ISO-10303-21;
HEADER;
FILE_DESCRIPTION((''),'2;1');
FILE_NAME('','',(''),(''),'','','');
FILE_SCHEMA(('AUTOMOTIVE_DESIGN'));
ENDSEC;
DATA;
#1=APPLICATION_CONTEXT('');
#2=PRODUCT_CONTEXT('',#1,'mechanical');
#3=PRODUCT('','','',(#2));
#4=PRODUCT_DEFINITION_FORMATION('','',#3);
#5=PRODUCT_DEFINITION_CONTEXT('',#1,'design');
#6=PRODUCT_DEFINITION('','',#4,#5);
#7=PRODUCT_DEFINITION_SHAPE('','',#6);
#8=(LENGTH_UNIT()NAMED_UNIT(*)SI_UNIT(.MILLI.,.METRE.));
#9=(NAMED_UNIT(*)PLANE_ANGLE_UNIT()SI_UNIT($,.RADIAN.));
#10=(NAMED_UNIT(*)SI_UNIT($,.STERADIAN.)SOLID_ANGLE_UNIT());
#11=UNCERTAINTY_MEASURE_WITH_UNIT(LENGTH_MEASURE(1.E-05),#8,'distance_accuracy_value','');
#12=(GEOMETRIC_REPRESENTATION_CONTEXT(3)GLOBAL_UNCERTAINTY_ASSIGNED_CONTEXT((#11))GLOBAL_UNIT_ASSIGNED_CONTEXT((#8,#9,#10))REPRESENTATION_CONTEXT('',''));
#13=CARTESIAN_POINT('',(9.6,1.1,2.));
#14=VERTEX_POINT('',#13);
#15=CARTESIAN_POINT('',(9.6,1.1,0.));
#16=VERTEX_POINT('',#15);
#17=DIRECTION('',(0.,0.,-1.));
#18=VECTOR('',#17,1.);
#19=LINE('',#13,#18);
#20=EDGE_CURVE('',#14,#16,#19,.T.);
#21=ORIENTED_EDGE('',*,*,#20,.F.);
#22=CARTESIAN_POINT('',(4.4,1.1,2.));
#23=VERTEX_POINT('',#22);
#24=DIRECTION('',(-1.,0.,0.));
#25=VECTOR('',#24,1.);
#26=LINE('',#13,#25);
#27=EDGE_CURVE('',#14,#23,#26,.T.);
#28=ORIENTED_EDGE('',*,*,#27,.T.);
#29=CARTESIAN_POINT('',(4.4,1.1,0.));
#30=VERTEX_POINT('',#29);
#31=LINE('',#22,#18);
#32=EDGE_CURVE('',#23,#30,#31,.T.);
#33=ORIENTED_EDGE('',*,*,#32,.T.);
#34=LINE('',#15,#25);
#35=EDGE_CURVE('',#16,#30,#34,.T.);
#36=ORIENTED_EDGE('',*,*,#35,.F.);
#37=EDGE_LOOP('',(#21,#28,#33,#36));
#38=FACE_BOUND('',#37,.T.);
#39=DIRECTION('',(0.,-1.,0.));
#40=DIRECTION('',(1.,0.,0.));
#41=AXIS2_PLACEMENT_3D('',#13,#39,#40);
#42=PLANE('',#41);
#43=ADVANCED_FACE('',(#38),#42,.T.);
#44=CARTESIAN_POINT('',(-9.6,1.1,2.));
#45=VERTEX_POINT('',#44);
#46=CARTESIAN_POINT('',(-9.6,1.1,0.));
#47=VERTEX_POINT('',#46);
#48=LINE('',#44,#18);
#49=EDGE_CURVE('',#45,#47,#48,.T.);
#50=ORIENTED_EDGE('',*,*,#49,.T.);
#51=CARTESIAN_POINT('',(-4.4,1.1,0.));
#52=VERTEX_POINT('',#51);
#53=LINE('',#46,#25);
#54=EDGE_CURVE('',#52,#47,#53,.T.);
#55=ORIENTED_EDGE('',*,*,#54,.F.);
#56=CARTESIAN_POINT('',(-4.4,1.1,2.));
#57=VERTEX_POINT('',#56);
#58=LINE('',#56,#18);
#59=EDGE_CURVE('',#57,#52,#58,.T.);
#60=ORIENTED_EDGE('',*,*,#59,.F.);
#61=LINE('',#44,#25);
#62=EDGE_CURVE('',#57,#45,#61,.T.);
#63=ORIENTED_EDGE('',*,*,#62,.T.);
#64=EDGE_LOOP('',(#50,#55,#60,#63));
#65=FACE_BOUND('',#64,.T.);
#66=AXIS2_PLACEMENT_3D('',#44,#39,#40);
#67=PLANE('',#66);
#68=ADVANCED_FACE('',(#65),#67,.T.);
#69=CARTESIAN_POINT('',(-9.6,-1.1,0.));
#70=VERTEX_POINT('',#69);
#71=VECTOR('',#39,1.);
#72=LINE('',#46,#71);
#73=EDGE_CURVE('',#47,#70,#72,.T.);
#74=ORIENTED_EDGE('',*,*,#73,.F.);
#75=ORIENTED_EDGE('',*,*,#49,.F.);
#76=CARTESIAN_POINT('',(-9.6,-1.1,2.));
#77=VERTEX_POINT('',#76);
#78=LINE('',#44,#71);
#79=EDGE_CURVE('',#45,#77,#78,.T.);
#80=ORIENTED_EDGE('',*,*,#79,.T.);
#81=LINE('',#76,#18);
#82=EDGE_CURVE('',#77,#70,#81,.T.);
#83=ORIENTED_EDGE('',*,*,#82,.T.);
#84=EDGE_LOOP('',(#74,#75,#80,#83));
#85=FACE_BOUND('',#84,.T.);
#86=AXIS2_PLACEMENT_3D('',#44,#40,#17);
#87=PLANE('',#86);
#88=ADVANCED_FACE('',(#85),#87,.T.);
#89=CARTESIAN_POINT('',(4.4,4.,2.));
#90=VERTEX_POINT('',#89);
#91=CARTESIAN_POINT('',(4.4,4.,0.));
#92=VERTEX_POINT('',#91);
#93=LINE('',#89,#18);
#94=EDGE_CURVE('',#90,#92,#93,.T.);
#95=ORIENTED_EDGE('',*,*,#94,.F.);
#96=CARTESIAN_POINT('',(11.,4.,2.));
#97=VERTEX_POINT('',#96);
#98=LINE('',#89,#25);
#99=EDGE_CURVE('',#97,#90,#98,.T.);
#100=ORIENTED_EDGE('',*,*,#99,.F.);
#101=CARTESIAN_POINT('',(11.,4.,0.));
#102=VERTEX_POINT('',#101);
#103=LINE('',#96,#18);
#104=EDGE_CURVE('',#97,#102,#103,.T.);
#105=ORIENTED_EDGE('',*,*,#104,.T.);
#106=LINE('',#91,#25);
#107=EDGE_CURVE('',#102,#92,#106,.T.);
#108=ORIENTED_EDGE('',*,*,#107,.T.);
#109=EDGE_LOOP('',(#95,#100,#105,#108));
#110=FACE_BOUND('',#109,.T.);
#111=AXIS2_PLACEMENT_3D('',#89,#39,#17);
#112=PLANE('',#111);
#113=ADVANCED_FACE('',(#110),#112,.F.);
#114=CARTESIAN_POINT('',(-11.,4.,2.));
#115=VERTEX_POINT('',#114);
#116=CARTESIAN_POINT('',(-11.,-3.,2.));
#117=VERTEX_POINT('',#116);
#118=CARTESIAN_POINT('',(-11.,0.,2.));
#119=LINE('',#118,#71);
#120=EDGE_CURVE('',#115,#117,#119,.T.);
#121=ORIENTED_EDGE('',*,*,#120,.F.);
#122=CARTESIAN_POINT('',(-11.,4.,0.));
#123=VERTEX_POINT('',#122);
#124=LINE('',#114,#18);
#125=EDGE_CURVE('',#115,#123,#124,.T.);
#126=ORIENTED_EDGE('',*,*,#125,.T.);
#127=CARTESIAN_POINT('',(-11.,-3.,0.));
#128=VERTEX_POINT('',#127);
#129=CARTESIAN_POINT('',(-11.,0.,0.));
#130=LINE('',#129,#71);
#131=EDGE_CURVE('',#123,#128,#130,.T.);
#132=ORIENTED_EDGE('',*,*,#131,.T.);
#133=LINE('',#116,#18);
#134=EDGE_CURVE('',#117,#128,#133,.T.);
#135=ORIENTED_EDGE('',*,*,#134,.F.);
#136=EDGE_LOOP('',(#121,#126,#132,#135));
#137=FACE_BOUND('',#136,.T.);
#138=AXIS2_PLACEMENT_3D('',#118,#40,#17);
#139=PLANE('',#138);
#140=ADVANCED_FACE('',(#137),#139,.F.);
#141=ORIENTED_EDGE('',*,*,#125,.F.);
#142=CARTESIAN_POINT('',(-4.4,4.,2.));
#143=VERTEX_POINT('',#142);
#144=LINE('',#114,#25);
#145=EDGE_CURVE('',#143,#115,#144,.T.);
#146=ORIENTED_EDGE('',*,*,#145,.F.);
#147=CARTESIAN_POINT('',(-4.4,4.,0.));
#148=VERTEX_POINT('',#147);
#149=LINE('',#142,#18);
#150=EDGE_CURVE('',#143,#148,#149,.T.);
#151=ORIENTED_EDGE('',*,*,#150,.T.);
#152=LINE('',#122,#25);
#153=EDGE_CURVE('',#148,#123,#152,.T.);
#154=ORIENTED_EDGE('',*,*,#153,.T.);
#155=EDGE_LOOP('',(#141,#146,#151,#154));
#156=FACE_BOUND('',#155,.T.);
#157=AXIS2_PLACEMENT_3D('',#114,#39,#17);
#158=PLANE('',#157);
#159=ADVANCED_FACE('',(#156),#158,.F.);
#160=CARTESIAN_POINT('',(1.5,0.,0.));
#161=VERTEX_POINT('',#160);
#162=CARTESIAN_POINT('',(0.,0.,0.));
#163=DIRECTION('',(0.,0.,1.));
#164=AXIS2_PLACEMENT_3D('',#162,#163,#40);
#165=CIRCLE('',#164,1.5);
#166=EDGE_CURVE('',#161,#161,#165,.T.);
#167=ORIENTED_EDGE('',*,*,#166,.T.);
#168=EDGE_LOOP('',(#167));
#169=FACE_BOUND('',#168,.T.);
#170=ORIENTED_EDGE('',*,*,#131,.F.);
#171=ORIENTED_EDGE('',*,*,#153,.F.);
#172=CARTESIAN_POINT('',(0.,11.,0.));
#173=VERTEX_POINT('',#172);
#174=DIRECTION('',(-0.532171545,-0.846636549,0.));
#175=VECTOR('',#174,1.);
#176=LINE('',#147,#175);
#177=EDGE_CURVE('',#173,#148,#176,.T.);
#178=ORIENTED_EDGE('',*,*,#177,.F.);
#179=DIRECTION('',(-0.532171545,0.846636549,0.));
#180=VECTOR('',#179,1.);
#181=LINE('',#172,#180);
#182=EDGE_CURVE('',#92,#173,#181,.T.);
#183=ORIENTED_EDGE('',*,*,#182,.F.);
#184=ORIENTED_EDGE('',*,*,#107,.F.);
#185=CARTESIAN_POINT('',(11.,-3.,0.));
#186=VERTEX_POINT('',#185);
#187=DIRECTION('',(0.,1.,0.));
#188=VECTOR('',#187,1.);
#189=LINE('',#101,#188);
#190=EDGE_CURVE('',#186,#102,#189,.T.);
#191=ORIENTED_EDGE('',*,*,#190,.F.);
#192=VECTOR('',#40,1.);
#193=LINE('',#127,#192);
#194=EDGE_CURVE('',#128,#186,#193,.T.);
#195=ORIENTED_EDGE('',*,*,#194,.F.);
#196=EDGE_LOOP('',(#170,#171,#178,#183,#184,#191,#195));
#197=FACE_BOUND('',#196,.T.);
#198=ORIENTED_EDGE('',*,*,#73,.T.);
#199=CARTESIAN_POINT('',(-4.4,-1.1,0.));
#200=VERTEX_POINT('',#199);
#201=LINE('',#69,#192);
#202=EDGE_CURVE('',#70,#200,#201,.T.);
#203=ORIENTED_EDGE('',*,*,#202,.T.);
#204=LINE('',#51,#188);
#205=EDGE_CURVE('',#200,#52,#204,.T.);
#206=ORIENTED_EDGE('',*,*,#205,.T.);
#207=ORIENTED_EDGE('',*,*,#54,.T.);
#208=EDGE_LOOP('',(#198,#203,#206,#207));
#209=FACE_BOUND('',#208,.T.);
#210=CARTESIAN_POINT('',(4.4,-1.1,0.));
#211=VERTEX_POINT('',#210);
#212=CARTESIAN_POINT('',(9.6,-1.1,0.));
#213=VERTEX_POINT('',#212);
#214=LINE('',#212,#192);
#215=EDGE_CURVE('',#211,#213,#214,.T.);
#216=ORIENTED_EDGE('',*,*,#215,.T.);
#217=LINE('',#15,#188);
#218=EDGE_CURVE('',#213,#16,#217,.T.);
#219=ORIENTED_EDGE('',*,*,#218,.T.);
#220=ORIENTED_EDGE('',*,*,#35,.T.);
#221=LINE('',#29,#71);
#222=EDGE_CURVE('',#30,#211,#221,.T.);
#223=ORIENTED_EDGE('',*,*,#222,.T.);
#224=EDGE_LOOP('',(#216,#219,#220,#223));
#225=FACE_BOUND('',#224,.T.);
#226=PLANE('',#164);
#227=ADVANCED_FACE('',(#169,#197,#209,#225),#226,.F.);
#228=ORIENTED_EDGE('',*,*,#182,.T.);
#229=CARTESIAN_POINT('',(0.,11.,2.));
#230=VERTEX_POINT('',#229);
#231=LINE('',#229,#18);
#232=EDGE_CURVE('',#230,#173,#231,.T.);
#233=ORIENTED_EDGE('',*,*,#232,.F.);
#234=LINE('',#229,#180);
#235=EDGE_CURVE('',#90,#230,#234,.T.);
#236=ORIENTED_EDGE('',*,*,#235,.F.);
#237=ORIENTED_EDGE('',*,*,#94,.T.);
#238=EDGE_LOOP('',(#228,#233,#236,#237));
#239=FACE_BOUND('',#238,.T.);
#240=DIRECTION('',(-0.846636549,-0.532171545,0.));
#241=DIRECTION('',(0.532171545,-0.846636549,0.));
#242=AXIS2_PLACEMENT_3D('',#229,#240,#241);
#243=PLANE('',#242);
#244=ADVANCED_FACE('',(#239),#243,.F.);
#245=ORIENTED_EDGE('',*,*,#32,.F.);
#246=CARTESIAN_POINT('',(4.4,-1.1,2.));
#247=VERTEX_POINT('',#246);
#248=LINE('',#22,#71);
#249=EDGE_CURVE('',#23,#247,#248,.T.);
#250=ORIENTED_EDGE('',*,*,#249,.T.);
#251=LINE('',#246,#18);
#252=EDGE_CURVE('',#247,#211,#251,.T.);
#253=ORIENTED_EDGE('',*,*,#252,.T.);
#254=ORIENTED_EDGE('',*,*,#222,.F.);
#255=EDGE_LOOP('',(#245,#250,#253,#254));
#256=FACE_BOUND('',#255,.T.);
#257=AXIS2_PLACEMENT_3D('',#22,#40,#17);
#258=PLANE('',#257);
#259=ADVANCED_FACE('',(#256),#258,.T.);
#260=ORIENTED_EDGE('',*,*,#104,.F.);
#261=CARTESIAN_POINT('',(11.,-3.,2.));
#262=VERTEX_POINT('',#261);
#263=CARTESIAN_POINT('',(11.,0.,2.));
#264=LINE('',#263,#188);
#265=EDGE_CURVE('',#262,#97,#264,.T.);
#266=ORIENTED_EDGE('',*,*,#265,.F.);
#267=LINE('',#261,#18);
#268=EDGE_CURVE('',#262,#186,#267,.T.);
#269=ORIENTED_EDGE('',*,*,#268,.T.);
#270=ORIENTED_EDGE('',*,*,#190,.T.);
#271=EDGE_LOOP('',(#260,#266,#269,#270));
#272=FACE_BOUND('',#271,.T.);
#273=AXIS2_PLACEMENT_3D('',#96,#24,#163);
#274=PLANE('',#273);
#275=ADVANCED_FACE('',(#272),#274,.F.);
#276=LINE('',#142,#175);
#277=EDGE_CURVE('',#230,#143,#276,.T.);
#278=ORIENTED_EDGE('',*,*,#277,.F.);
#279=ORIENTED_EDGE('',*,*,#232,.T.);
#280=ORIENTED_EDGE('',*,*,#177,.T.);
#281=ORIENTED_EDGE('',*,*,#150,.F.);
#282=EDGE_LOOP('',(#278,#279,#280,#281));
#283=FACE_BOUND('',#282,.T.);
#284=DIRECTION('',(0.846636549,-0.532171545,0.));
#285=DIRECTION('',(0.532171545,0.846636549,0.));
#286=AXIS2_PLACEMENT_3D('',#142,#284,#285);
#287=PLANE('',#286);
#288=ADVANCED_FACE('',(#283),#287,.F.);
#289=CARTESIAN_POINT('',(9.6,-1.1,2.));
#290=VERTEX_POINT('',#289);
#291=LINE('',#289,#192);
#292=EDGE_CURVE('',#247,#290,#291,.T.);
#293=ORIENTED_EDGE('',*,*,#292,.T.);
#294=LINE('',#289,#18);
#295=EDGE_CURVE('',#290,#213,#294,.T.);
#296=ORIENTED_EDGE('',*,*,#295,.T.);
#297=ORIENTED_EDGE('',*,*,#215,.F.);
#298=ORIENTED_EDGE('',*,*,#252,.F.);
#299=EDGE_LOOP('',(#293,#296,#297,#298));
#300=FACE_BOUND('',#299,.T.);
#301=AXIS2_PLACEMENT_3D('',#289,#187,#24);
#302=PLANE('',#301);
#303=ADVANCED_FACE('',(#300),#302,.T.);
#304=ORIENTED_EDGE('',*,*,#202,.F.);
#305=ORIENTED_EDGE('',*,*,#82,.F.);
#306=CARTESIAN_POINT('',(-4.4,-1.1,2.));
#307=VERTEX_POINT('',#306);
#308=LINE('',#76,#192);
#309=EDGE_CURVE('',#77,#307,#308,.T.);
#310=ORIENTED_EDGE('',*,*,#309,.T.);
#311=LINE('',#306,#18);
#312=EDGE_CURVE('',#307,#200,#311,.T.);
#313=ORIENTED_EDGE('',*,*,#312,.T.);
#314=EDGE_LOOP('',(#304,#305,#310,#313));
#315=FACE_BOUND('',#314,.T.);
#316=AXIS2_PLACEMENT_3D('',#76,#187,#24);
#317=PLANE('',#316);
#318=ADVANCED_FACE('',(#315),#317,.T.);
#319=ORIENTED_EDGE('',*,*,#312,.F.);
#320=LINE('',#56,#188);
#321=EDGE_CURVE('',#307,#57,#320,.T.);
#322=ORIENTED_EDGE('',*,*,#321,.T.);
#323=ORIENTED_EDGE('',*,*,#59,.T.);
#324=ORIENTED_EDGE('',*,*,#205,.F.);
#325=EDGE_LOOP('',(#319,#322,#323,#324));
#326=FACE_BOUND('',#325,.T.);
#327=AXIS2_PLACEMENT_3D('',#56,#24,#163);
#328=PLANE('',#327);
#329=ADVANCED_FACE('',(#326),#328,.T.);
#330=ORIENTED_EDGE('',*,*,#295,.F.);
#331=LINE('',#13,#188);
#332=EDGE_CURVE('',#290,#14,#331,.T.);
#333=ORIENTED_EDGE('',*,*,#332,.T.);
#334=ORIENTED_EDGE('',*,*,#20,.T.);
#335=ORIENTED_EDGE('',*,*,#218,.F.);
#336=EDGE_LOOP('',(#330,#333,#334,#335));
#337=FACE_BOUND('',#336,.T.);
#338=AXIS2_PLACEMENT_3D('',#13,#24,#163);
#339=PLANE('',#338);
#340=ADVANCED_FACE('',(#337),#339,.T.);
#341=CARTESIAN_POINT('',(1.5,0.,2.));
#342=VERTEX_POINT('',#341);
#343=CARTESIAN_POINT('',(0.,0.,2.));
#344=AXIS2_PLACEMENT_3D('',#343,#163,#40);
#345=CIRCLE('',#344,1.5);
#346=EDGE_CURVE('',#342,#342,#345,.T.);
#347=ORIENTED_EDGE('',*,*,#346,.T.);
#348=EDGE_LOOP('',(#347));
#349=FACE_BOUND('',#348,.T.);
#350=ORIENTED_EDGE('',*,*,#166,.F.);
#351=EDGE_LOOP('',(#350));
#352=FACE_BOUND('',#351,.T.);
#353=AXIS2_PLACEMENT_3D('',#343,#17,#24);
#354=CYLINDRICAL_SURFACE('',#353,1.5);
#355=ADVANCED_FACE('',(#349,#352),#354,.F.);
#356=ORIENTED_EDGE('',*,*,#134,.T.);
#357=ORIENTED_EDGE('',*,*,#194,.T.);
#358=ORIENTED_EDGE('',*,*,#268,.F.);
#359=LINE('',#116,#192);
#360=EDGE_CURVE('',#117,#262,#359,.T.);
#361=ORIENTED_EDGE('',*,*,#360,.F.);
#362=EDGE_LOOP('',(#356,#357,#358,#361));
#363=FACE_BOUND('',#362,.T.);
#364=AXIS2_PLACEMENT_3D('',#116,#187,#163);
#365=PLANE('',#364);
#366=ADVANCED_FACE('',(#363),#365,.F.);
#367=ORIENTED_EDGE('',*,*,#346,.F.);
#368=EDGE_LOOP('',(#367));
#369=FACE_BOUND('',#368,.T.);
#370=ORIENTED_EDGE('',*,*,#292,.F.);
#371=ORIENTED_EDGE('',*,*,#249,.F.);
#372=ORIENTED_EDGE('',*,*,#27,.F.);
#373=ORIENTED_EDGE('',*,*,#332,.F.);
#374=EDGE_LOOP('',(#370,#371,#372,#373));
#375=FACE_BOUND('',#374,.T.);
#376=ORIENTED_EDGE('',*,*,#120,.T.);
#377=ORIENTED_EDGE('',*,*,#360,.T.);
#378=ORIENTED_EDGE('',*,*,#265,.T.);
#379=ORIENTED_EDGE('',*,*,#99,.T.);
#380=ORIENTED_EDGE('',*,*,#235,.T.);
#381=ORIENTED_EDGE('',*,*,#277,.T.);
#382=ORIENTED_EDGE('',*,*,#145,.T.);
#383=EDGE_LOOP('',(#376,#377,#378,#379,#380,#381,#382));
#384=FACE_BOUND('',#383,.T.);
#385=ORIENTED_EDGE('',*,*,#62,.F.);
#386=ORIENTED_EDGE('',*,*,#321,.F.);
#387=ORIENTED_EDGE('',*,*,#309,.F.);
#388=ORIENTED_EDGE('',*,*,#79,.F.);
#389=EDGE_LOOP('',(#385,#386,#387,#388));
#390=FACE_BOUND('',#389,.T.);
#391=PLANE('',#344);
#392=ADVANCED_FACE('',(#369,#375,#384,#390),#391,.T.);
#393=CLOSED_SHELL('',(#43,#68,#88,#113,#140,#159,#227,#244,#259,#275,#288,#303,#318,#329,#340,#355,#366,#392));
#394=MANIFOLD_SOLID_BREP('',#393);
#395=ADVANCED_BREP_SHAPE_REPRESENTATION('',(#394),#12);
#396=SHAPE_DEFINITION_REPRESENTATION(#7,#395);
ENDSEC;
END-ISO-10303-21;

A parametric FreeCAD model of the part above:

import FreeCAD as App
import Part
import Sketcher

V = App.Vector
Q = App.Units.Quantity


def add_polygon(sketch, points):
    """Adds a closed chain of lines whose ends are joined by coincident constraints."""
    first, n = sketch.GeometryCount, len(points)
    for a, b in zip(points, points[1:] + points[:1]):
        sketch.addGeometry(Part.LineSegment(App.Vector(*a, 0), App.Vector(*b, 0)), False)
    for i in range(n):
        sketch.addConstraint(Sketcher.Constraint("Coincident", first + i, 2, first + (i + 1) % n, 1))

doc = App.newDocument("Part")
params = doc.addObject("Spreadsheet::Sheet", "Params")
for row, (alias, value) in enumerate([
    ("sketch1_diameter", "3 mm"),
    ("sketch1_width", "22 mm"),
    ("sketch1_height", "7 mm"),
    ("sketch1_width2", "6.6 mm"),
    ("sketch1_width3", "5.2 mm"),
    ("pad1_length", "2 mm"),
], start=1):
    params.set(f"A{row}", alias)
    params.set(f"B{row}", "=" + value)
    params.setAlias(f"B{row}", alias)

body = doc.addObject("PartDesign::Body", "Body")

sketch1 = doc.addObject("Sketcher::SketchObject", "Sketch")
body.addObject(sketch1)
sketch1.AttachmentSupport = (doc.XY_Plane, [""])
sketch1.MapMode = "FlatFace"
add_polygon(sketch1, [(-11, -3), (11, -3), (11, 4), (4.4, 4), (0, 11), (-4.4, 4), (-11, 4)])
add_polygon(sketch1, [(-4.4, -1.1), (-9.6, -1.1), (-9.6, 1.1), (-4.4, 1.1)])
add_polygon(sketch1, [(9.6, -1.1), (4.4, -1.1), (4.4, 1.1), (9.6, 1.1)])
sketch1.addGeometry(Part.Circle(V(0, 0, 0), V(0, 0, 1), 1.5), False)
sketch1.addConstraint([
    Sketcher.Constraint("Horizontal", 0),
    Sketcher.Constraint("Vertical", 1),
    Sketcher.Constraint("Horizontal", 2),
    Sketcher.Constraint("Horizontal", 5),
    Sketcher.Constraint("Vertical", 6),
    Sketcher.Constraint("Horizontal", 7),
    Sketcher.Constraint("Vertical", 8),
    Sketcher.Constraint("Horizontal", 9),
    Sketcher.Constraint("Vertical", 10),
    Sketcher.Constraint("Horizontal", 11),
    Sketcher.Constraint("Vertical", 12),
    Sketcher.Constraint("Horizontal", 13),
    Sketcher.Constraint("Vertical", 14),
    Sketcher.Constraint("Coincident", 15, 3, -1, 1),
    Sketcher.Constraint("Symmetric", 9, 2, 11, 2, -1, 1),
    Sketcher.Constraint("Symmetric", 7, 2, 13, 2, -1, 1),
    Sketcher.Constraint("Symmetric", 2, 2, 4, 2, -2),
    Sketcher.Constraint("PointOnObject", 3, 2, -2),
    Sketcher.Constraint("Horizontal", 10, 2, 11, 2),
    Sketcher.Constraint("Vertical", 4, 2, 9, 2),
    Sketcher.Constraint("Equal", 2, 5),
    Sketcher.Constraint("Diameter", 15, Q("3 mm")),
    Sketcher.Constraint("DistanceX", 0, 1, 0, 2, Q("22 mm")),
    Sketcher.Constraint("DistanceY", 1, 1, 1, 2, Q("7 mm")),
    Sketcher.Constraint("DistanceX", 2, 2, 2, 1, Q("6.6 mm")),
    Sketcher.Constraint("DistanceX", 7, 2, 7, 1, Q("5.2 mm")),
    Sketcher.Constraint("DistanceY", 8, 1, 8, 2, Q("2.2 mm")),
    Sketcher.Constraint("DistanceY", 0, 2, -1, 1, Q("3 mm")),
    Sketcher.Constraint("DistanceY", -1, 1, 3, 2, Q("11 mm")),
])
sketch1.setExpression("Constraints[36]", "Params.sketch1_diameter")
sketch1.setExpression("Constraints[37]", "Params.sketch1_width")
sketch1.setExpression("Constraints[38]", "Params.sketch1_height")
sketch1.setExpression("Constraints[39]", "Params.sketch1_width2")
sketch1.setExpression("Constraints[40]", "Params.sketch1_width3")
pad1 = doc.addObject("PartDesign::Pad", "Pad")
body.addObject(pad1)
pad1.Profile = sketch1
pad1.setExpression("Length", "Params.pad1_length")

doc.recompute()
